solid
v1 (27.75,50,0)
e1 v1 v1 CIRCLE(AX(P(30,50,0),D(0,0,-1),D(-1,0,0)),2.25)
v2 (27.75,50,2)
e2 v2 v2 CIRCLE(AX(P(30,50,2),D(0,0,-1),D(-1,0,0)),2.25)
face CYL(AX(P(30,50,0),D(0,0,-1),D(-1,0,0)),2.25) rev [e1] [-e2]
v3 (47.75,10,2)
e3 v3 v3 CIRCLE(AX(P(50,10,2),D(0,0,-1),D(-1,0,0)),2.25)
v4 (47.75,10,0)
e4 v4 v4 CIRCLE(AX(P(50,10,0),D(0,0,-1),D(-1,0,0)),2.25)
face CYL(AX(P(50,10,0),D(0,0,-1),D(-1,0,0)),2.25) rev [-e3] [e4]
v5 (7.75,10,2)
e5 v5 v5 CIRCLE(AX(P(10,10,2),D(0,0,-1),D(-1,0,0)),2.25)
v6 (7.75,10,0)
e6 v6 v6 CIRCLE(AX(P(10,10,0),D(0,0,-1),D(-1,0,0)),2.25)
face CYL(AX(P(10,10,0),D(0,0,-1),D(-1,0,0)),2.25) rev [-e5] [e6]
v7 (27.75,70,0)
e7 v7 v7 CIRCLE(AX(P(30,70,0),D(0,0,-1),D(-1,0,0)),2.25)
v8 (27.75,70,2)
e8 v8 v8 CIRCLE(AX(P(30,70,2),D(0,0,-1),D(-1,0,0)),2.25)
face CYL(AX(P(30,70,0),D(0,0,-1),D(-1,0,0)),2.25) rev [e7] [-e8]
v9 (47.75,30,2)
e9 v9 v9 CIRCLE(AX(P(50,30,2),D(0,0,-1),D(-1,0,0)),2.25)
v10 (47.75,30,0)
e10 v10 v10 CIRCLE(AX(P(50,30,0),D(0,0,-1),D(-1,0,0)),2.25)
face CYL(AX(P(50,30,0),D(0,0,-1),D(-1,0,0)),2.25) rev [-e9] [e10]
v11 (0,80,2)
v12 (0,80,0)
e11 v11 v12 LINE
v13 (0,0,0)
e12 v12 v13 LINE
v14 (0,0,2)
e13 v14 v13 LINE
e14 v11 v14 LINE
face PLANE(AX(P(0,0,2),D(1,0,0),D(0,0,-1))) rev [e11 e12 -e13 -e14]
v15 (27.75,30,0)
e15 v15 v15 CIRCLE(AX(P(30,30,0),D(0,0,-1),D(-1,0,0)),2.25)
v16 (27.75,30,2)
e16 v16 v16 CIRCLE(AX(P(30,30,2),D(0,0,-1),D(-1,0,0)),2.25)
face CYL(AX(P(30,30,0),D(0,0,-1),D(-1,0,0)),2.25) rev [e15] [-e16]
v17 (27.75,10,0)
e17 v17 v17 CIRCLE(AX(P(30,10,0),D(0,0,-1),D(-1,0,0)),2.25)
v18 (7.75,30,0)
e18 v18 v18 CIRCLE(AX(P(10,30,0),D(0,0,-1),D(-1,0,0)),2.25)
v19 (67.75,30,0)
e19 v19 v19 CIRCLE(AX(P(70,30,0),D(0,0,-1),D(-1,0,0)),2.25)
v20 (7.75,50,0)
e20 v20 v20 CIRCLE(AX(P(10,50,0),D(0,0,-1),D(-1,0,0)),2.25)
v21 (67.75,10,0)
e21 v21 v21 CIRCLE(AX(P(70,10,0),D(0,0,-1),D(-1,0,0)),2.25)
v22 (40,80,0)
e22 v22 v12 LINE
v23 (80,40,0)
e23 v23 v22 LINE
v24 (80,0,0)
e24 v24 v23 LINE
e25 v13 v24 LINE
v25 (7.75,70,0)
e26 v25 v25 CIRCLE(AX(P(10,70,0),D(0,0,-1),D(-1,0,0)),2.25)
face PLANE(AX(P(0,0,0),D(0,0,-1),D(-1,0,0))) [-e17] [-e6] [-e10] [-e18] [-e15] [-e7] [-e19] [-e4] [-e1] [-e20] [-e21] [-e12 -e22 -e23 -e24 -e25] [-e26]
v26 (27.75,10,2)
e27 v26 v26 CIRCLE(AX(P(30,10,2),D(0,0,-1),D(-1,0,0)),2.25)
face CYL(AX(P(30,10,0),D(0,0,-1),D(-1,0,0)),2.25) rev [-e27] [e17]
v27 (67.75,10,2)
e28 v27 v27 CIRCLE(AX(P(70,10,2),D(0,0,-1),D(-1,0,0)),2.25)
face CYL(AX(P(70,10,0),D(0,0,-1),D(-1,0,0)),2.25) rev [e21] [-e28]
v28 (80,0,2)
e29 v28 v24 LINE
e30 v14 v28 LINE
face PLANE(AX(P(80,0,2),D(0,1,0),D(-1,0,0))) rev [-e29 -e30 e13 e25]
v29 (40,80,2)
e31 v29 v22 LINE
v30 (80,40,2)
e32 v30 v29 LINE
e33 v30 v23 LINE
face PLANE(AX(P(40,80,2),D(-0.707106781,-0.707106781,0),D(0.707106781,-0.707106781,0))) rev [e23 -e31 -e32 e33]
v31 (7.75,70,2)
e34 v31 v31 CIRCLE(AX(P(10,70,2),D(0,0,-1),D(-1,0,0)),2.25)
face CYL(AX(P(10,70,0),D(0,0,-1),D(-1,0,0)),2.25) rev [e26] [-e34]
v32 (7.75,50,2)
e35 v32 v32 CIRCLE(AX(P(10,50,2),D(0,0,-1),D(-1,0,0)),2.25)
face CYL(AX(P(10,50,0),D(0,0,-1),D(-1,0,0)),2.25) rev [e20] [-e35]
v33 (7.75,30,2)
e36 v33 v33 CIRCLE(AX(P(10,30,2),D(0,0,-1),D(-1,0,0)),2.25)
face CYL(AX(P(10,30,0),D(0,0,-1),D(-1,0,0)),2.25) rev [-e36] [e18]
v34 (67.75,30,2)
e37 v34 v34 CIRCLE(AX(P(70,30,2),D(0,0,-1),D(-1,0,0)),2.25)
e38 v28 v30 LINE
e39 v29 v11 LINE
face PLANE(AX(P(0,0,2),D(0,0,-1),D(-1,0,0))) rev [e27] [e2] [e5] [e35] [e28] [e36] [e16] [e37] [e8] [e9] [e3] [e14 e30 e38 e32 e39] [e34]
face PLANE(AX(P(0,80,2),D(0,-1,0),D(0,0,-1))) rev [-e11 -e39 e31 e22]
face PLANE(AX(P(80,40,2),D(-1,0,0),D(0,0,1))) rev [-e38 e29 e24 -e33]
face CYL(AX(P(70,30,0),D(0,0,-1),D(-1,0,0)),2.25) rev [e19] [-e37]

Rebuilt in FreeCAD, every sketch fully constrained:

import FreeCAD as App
import Part
import Sketcher
from FreeCAD import Vector
Q = App.Units.Quantity

doc = App.newDocument("Part")
body = doc.addObject("PartDesign::Body", "Body")

sketch1 = body.newObject("Sketcher::SketchObject", "Sketch")
sketch1.AttachmentSupport = (doc.getObject("XY_Plane"), [""])
sketch1.MapMode = "FlatFace"
sketch1.addGeometry(Part.LineSegment(Vector(0, 80, 0), Vector(0, 0, 0)), False)
sketch1.addGeometry(Part.LineSegment(Vector(0, 0, 0), Vector(80, 0, 0)), False)
sketch1.addGeometry(Part.LineSegment(Vector(80, 0, 0), Vector(80, 40, 0)), False)
sketch1.addGeometry(Part.LineSegment(Vector(80, 40, 0), Vector(40, 80, 0)), False)
sketch1.addGeometry(Part.LineSegment(Vector(40, 80, 0), Vector(0, 80, 0)), False)
sketch1.addConstraint(Sketcher.Constraint("Coincident", 0, 2, 1, 1))
sketch1.addConstraint(Sketcher.Constraint("Coincident", 1, 2, 2, 1))
sketch1.addConstraint(Sketcher.Constraint("Coincident", 2, 2, 3, 1))
sketch1.addConstraint(Sketcher.Constraint("Coincident", 3, 2, 4, 1))
sketch1.addConstraint(Sketcher.Constraint("Coincident", 4, 2, 0, 1))
sketch1.addConstraint(Sketcher.Constraint("Vertical", 0))
sketch1.addConstraint(Sketcher.Constraint("Horizontal", 1))
sketch1.addConstraint(Sketcher.Constraint("Vertical", 2))
sketch1.addConstraint(Sketcher.Constraint("Horizontal", 4))
sketch1.addConstraint(Sketcher.Constraint("Coincident", 0, 2, -1, 1))
sketch1.addConstraint(Sketcher.Constraint("Equal", 1, 0))
sketch1.addConstraint(Sketcher.Constraint("Equal", 4, 2))
sketch1.addConstraint(Sketcher.Constraint("DistanceX", 1, 1, 1, 2, Q("80 mm")))
sketch1.addConstraint(Sketcher.Constraint("DistanceX", 4, 2, 4, 1, Q("40 mm")))
pad1 = body.newObject("PartDesign::Pad", "Pad")
pad1.Profile = sketch1
pad1.Length = 2

sketch2 = body.newObject("Sketcher::SketchObject", "Sketch001")
sketch2.AttachmentSupport = (doc.getObject("XY_Plane"), [""])
sketch2.MapMode = "FlatFace"
sketch2.addGeometry(Part.Circle(Vector(70, 10, 0), Vector(0, 0, 1), 2.2), False)
sketch2.addGeometry(Part.Circle(Vector(30, 50, 0), Vector(0, 0, 1), 2.2), False)
sketch2.addGeometry(Part.Circle(Vector(50, 10, 0), Vector(0, 0, 1), 2.2), False)
sketch2.addGeometry(Part.Circle(Vector(10, 50, 0), Vector(0, 0, 1), 2.2), False)
sketch2.addGeometry(Part.Circle(Vector(70, 30, 0), Vector(0, 0, 1), 2.2), False)
sketch2.addGeometry(Part.Circle(Vector(30, 70, 0), Vector(0, 0, 1), 2.2), False)
sketch2.addGeometry(Part.Circle(Vector(50, 30, 0), Vector(0, 0, 1), 2.2), False)
sketch2.addGeometry(Part.Circle(Vector(10, 70, 0), Vector(0, 0, 1), 2.2), False)
sketch2.addGeometry(Part.Circle(Vector(30, 10, 0), Vector(0, 0, 1), 2.2), False)
sketch2.addGeometry(Part.Circle(Vector(10, 10, 0), Vector(0, 0, 1), 2.2), False)
sketch2.addGeometry(Part.Circle(Vector(30, 30, 0), Vector(0, 0, 1), 2.2), False)
sketch2.addGeometry(Part.Circle(Vector(10, 30, 0), Vector(0, 0, 1), 2.2), False)
sketch2.addConstraint(Sketcher.Constraint("Equal", 0, 1))
sketch2.addConstraint(Sketcher.Constraint("Equal", 1, 2))
sketch2.addConstraint(Sketcher.Constraint("Equal", 2, 3))
sketch2.addConstraint(Sketcher.Constraint("Equal", 3, 4))
sketch2.addConstraint(Sketcher.Constraint("Equal", 4, 5))
sketch2.addConstraint(Sketcher.Constraint("Equal", 5, 6))
sketch2.addConstraint(Sketcher.Constraint("Equal", 6, 7))
sketch2.addConstraint(Sketcher.Constraint("Equal", 7, 8))
sketch2.addConstraint(Sketcher.Constraint("Equal", 8, 9))
sketch2.addConstraint(Sketcher.Constraint("Equal", 9, 10))
sketch2.addConstraint(Sketcher.Constraint("Equal", 10, 11))
sketch2.addConstraint(Sketcher.Constraint("Horizontal", 0, 3, 2, 3))
sketch2.addConstraint(Sketcher.Constraint("Horizontal", 1, 3, 3, 3))
sketch2.addConstraint(Sketcher.Constraint("Horizontal", 4, 3, 6, 3))
sketch2.addConstraint(Sketcher.Constraint("Horizontal", 5, 3, 7, 3))
sketch2.addConstraint(Sketcher.Constraint("Horizontal", 2, 3, 8, 3))
sketch2.addConstraint(Sketcher.Constraint("Horizontal", 8, 3, 9, 3))
sketch2.addConstraint(Sketcher.Constraint("Horizontal", 6, 3, 10, 3))
sketch2.addConstraint(Sketcher.Constraint("Horizontal", 10, 3, 11, 3))
sketch2.addConstraint(Sketcher.Constraint("Vertical", 0, 3, 4, 3))
sketch2.addConstraint(Sketcher.Constraint("Vertical", 1, 3, 5, 3))
sketch2.addConstraint(Sketcher.Constraint("Vertical", 2, 3, 6, 3))
sketch2.addConstraint(Sketcher.Constraint("Vertical", 3, 3, 7, 3))
sketch2.addConstraint(Sketcher.Constraint("Vertical", 5, 3, 8, 3))
sketch2.addConstraint(Sketcher.Constraint("Vertical", 7, 3, 9, 3))
sketch2.addConstraint(Sketcher.Constraint("Vertical", 8, 3, 10, 3))
sketch2.addConstraint(Sketcher.Constraint("Vertical", 9, 3, 11, 3))
sketch2.addConstraint(Sketcher.Constraint("Diameter", 0, Q("4.5 mm")))
sketch2.addConstraint(Sketcher.Constraint("DistanceX", -1, 1, 0, 3, Q("70 mm")))
sketch2.addConstraint(Sketcher.Constraint("DistanceY", -1, 1, 0, 3, Q("10 mm")))
sketch2.addConstraint(Sketcher.Constraint("DistanceX", -1, 1, 1, 3, Q("30 mm")))
sketch2.addConstraint(Sketcher.Constraint("DistanceY", -1, 1, 1, 3, Q("50 mm")))
sketch2.addConstraint(Sketcher.Constraint("DistanceX", -1, 1, 2, 3, Q("50 mm")))
sketch2.addConstraint(Sketcher.Constraint("DistanceX", -1, 1, 3, 3, Q("10 mm")))
sketch2.addConstraint(Sketcher.Constraint("DistanceY", -1, 1, 4, 3, Q("30 mm")))
sketch2.addConstraint(Sketcher.Constraint("DistanceY", -1, 1, 5, 3, Q("70 mm")))
doc.recompute()
hole = body.newObject("PartDesign::Hole", "Hole")
hole.Profile = sketch2
hole.ThreadType = "None"
hole.Diameter = 4.5
hole.DepthType = "Dimension"
hole.Depth = 5
hole.DrillPoint = "Angled"
hole.DrillPointAngle = 118
hole.Reversed = True

doc.recompute()
